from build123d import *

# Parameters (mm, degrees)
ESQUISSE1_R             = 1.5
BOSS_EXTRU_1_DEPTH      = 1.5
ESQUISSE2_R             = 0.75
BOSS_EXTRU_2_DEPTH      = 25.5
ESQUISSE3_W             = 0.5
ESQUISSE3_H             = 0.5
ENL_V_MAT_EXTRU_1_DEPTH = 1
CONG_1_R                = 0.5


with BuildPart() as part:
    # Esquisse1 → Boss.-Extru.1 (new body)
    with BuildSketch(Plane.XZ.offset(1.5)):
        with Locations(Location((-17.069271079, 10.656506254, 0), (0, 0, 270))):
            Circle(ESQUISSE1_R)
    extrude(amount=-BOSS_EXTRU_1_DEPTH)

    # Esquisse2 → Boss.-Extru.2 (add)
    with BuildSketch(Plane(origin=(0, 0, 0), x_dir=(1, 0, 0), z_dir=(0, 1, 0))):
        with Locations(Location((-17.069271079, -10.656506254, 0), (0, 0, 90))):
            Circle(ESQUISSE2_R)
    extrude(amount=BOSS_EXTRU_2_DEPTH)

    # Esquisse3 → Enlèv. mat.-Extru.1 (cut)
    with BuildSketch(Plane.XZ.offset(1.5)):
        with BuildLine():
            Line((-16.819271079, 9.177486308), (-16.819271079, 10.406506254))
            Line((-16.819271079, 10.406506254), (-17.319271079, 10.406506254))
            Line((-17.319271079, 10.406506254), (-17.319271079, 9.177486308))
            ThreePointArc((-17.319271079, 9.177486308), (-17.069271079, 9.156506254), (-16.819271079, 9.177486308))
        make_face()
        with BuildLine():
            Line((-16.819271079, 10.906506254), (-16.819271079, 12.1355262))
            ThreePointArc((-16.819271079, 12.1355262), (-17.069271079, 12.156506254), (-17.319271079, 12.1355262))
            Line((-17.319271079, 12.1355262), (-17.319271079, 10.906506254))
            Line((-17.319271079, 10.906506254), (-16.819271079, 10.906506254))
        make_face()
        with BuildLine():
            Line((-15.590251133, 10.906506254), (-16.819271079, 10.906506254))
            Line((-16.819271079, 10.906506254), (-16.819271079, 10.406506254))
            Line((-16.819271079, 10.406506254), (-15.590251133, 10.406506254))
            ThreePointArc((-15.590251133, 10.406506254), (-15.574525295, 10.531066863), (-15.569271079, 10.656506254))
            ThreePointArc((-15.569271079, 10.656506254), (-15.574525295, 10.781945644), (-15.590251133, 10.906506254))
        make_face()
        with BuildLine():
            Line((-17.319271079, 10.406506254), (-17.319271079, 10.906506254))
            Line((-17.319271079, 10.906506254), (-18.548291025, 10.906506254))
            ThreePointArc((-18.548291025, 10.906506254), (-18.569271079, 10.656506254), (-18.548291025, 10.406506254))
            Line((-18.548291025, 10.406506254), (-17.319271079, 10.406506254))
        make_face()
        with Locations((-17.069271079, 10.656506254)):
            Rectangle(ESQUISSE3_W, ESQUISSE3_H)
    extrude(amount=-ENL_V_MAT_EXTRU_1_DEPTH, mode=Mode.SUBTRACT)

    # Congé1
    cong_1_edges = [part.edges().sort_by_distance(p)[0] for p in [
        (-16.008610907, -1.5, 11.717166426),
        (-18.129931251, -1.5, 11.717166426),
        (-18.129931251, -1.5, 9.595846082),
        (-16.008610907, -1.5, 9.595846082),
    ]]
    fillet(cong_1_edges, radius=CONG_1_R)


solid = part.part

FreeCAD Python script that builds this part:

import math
import FreeCAD as App
import Part
import Sketcher
Q = App.Units.Quantity


def edges_at(feature, points):
    """Names of the edges that pass closest to the given points."""
    edges = feature.Shape.Edges
    near = lambda p: min(range(len(edges)), key=lambda i: edges[i].distToShape(Part.Vertex(*p))[0])
    return sorted({f"Edge{near(p) + 1}" for p in points})

doc = App.newDocument("Part")
body = doc.addObject("PartDesign::Body", "Body")

sketch1 = body.newObject("Sketcher::SketchObject", "Sketch")
sketch1.AttachmentSupport = (doc.getObject("XZ_Plane"), [""])
sketch1.MapMode = "FlatFace"
sketch1.AttachmentOffset = App.Placement(App.Vector(0, 0, 1.5), App.Rotation())
sketch1.addGeometry(Part.Circle(App.Vector(-17.1, 10.7, 0), App.Vector(0, 0, 1), 1.5), False)
sketch1.addConstraint([
    Sketcher.Constraint("Diameter", 0, Q("3 mm")),
    Sketcher.Constraint("DistanceX", 0, 3, -1, 1, Q("17.069271 mm")),
    Sketcher.Constraint("DistanceY", -1, 1, 0, 3, Q("10.656506 mm")),
])
pad1 = body.newObject("PartDesign::Pad", "Pad")
pad1.Profile = sketch1
pad1.Length = 1.5
pad1.Reversed = True

sketch2 = body.newObject("Sketcher::SketchObject", "Sketch001")
sketch2.AttachmentSupport = (doc.getObject("XZ_Plane"), [""])
sketch2.MapMode = "FlatFace"
sketch2.addGeometry(Part.Circle(App.Vector(-17.1, 10.7, 0), App.Vector(0, 0, 1), 0.8), False)
sketch2.addConstraint([
    Sketcher.Constraint("Diameter", 0, Q("1.5 mm")),
    Sketcher.Constraint("DistanceX", 0, 3, -1, 1, Q("17.069271 mm")),
    Sketcher.Constraint("DistanceY", -1, 1, 0, 3, Q("10.656506 mm")),
])
pad2 = body.newObject("PartDesign::Pad", "Pad001")
pad2.Profile = sketch2
pad2.Length = 25.5
pad2.Reversed = True

sketch3 = body.newObject("Sketcher::SketchObject", "Sketch002")
sketch3.AttachmentSupport = (doc.getObject("XZ_Plane"), [""])
sketch3.MapMode = "FlatFace"
sketch3.AttachmentOffset = App.Placement(App.Vector(0, 0, 1.5), App.Rotation())
sketch3.addGeometry([
    Part.LineSegment(App.Vector(-16.82, 9.18, 0), App.Vector(-16.82, 10.41, 0)),
    Part.LineSegment(App.Vector(-16.82, 10.41, 0), App.Vector(-15.59, 10.41, 0)),
    Part.ArcOfCircle(Part.Circle(App.Vector(-17.07, 10.66, 0), App.Vector(0, 0, 1), 1.5), math.radians(-9.59), math.radians(0)),
    Part.ArcOfCircle(Part.Circle(App.Vector(-17.07, 10.66, 0), App.Vector(0, 0, 1), 1.5), math.radians(0), math.radians(9.59)),
    Part.LineSegment(App.Vector(-15.59, 10.91, 0), App.Vector(-16.82, 10.91, 0)),
    Part.LineSegment(App.Vector(-16.82, 10.91, 0), App.Vector(-16.82, 12.14, 0)),
    Part.ArcOfCircle(Part.Circle(App.Vector(-17.07, 10.66, 0), App.Vector(0, 0, 1), 1.5), math.radians(80.41), math.radians(99.59)),
    Part.LineSegment(App.Vector(-17.32, 12.14, 0), App.Vector(-17.32, 10.91, 0)),
    Part.LineSegment(App.Vector(-17.32, 10.91, 0), App.Vector(-18.55, 10.91, 0)),
    Part.ArcOfCircle(Part.Circle(App.Vector(-17.07, 10.66, 0), App.Vector(0, 0, 1), 1.5), math.radians(170.41), math.radians(189.59)),
    Part.LineSegment(App.Vector(-18.55, 10.41, 0), App.Vector(-17.32, 10.41, 0)),
    Part.LineSegment(App.Vector(-17.32, 10.41, 0), App.Vector(-17.32, 9.18, 0)),
    Part.ArcOfCircle(Part.Circle(App.Vector(-17.07, 10.66, 0), App.Vector(0, 0, 1), 1.5), math.radians(-99.59), math.radians(-80.41)),
], False)
sketch3.addConstraint([
    Sketcher.Constraint("Coincident", 0, 2, 1, 1),
    Sketcher.Constraint("Coincident", 1, 2, 2, 1),
    Sketcher.Constraint("Tangent", 2, 2, 3, 1),
    Sketcher.Constraint("Coincident", 3, 2, 4, 1),
    Sketcher.Constraint("Coincident", 4, 2, 5, 1),
    Sketcher.Constraint("Coincident", 5, 2, 6, 1),
    Sketcher.Constraint("Coincident", 6, 2, 7, 1),
    Sketcher.Constraint("Coincident", 7, 2, 8, 1),
    Sketcher.Constraint("Coincident", 8, 2, 9, 1),
    Sketcher.Constraint("Coincident", 9, 2, 10, 1),
    Sketcher.Constraint("Coincident", 10, 2, 11, 1),
    Sketcher.Constraint("Coincident", 11, 2, 12, 1),
    Sketcher.Constraint("Coincident", 12, 2, 0, 1),
    Sketcher.Constraint("Vertical", 0),
    Sketcher.Constraint("Horizontal", 1),
    Sketcher.Constraint("Horizontal", 4),
    Sketcher.Constraint("Vertical", 5),
    Sketcher.Constraint("Vertical", 7),
    Sketcher.Constraint("Horizontal", 8),
    Sketcher.Constraint("Horizontal", 10),
    Sketcher.Constraint("Vertical", 11),
    Sketcher.Constraint("Coincident", 6, 3, 2, 3),
    Sketcher.Constraint("Coincident", 9, 3, 2, 3),
    Sketcher.Constraint("Coincident", 12, 3, 2, 3),
    Sketcher.Constraint("Equal", 2, 3),
    Sketcher.Constraint("Equal", 3, 6),
    Sketcher.Constraint("Equal", 6, 9),
    Sketcher.Constraint("Equal", 9, 12),
    Sketcher.Constraint("Horizontal", 12, 3, 2, 2),
    Sketcher.Constraint("Horizontal", 5, 2, 6, 2),
    Sketcher.Constraint("Horizontal", 4, 2, 7, 2),
    Sketcher.Constraint("Horizontal", 1, 2, 9, 2),
    Sketcher.Constraint("Horizontal", 11, 2, 12, 2),
    Sketcher.Constraint("Vertical", 1, 2, 3, 2),
    Sketcher.Constraint("Vertical", 0, 2, 4, 2),
    Sketcher.Constraint("Equal", 10, 0),
    Sketcher.Constraint("Radius", 2, Q("1.5 mm")),
    Sketcher.Constraint("DistanceY", 1, 2, 3, 2, Q("0.5 mm")),
    Sketcher.Constraint("DistanceX", 2, 3, -1, 1, Q("17.069271 mm")),
    Sketcher.Constraint("DistanceY", -1, 1, 2, 3, Q("10.656506 mm")),
])
pocket1 = body.newObject("PartDesign::Pocket", "Pocket")
pocket1.Profile = sketch3
pocket1.Length = 1
doc.recompute()

fillet = body.newObject("PartDesign::Fillet", "Fillet")
fillet.Base = (pocket1, edges_at(pocket1, [
    (-16.009, -1.5, 11.717),
    (-18.13, -1.5, 11.717),
    (-18.13, -1.5, 9.596),
    (-16.009, -1.5, 9.596),
]))
fillet.Radius = 0.5

doc.recompute()
